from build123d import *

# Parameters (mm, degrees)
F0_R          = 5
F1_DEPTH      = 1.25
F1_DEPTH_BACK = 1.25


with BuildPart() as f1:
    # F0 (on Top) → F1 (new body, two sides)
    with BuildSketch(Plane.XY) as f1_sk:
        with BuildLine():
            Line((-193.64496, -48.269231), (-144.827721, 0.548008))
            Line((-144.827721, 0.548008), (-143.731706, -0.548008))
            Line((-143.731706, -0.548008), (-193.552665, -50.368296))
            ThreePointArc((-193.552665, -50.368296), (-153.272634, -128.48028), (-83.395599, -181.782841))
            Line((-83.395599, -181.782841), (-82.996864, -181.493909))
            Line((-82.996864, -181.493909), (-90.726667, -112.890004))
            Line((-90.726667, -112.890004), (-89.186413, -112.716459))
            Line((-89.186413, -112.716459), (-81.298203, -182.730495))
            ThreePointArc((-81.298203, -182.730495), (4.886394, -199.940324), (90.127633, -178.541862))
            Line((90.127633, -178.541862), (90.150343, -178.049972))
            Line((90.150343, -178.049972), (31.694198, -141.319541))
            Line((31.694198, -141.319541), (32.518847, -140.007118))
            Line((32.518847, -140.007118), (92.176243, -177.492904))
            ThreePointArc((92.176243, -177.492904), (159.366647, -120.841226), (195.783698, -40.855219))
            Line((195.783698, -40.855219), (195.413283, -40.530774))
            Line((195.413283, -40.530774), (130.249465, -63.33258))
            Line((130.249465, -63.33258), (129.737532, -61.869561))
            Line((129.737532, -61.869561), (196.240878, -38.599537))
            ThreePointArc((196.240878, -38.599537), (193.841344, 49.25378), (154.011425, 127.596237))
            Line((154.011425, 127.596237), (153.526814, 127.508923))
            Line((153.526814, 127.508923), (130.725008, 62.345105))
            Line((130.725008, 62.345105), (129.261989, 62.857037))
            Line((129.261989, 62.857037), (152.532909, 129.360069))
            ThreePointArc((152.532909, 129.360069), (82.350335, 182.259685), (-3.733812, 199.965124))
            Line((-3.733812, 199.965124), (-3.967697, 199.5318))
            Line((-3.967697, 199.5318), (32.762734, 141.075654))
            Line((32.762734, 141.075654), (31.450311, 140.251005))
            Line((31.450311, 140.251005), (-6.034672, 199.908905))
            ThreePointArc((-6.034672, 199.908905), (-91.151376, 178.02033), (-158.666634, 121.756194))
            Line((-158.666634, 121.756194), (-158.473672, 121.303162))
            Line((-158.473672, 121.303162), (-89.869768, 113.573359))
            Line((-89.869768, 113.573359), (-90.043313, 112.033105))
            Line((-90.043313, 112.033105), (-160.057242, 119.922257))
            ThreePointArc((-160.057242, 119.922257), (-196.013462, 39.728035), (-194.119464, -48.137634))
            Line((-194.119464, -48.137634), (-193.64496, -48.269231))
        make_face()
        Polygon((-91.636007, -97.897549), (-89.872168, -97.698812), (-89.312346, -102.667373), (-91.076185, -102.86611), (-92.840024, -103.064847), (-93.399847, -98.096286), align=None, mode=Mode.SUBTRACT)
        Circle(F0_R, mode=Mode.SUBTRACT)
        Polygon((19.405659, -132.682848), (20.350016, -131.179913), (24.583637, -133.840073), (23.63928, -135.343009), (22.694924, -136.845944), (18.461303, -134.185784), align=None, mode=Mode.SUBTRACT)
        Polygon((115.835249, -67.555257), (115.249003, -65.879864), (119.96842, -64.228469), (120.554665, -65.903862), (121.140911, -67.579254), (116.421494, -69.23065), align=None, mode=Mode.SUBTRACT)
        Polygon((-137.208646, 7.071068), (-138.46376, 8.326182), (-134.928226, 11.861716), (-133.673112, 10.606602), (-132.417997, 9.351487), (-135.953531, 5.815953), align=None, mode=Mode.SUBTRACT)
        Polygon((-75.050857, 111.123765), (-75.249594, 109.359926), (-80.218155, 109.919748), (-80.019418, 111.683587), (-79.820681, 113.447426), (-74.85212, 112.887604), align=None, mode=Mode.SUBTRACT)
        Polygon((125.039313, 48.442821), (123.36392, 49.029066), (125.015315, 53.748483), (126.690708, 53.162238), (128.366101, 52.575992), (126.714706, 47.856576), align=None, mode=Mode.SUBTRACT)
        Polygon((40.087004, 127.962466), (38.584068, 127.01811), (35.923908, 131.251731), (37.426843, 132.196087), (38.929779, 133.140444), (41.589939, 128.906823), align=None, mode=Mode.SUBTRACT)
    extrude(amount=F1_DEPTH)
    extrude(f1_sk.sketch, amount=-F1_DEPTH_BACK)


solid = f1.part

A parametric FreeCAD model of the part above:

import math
import FreeCAD as App
import Part
import Sketcher

V = App.Vector

doc = App.newDocument("Part")
body = doc.addObject("PartDesign::Body", "Body")

sketch1 = body.newObject("Sketcher::SketchObject", "Sketch")
sketch1.AttachmentSupport = (doc.getObject("XY_Plane"), [""])
sketch1.MapMode = "FlatFace"
sketch1.addGeometry(Part.LineSegment(V(-193.64496, -48.269231, 0), V(-144.827721, 0.548008, 0)), False)
sketch1.addGeometry(Part.LineSegment(V(-144.827721, 0.548008, 0), V(-143.731706, -0.548008, 0)), False)
sketch1.addGeometry(Part.LineSegment(V(-143.731706, -0.548008, 0), V(-193.552665, -50.368296, 0)), False)
sketch1.addGeometry(Part.ArcOfCircle(Part.Circle(V(0.001034, 0, 0), V(0, 0, 1), 199.999999), math.radians(-165.413492), math.radians(-114.644268)), False)
sketch1.addGeometry(Part.LineSegment(V(-83.395599, -181.782841, 0), V(-82.996864, -181.493909, 0)), False)
sketch1.addGeometry(Part.LineSegment(V(-82.996864, -181.493909, 0), V(-90.726667, -112.890004, 0)), False)
sketch1.addGeometry(Part.LineSegment(V(-90.726667, -112.890004, 0), V(-89.186413, -112.716459, 0)), False)
sketch1.addGeometry(Part.LineSegment(V(-89.186413, -112.716459, 0), V(-81.298203, -182.730495, 0)), False)
sketch1.addGeometry(Part.ArcOfCircle(Part.Circle(V(0.001036, 0.000003, 0), V(0, 0, 1), 200.000003), math.radians(-113.98492), math.radians(-63.215697)), False)
sketch1.addGeometry(Part.LineSegment(V(90.127633, -178.541862, 0), V(90.150343, -178.049972, 0)), False)
sketch1.addGeometry(Part.LineSegment(V(90.150343, -178.049972, 0), V(31.694198, -141.319541, 0)), False)
sketch1.addGeometry(Part.LineSegment(V(31.694198, -141.319541, 0), V(32.518847, -140.007118, 0)), False)
sketch1.addGeometry(Part.LineSegment(V(32.518847, -140.007118, 0), V(92.176243, -177.492904, 0)), False)
sketch1.addGeometry(Part.ArcOfCircle(Part.Circle(V(0.001039, -0.000003, 0), V(0, 0, 1), 199.999995), math.radians(-62.556349), math.radians(-11.787125)), False)
sketch1.addGeometry(Part.LineSegment(V(195.783698, -40.855219, 0), V(195.413283, -40.530774, 0)), False)
sketch1.addGeometry(Part.LineSegment(V(195.413283, -40.530774, 0), V(130.249465, -63.33258, 0)), False)
sketch1.addGeometry(Part.LineSegment(V(130.249465, -63.33258, 0), V(129.737532, -61.869561, 0)), False)
sketch1.addGeometry(Part.LineSegment(V(129.737532, -61.869561, 0), V(196.240878, -38.599537, 0)), False)
sketch1.addGeometry(Part.ArcOfCircle(Part.Circle(V(0.001039, 0, 0), V(0, 0, 1), 199.999997), math.radians(-11.127778), math.radians(39.641447)), False)
sketch1.addGeometry(Part.LineSegment(V(154.011425, 127.596237, 0), V(153.526814, 127.508923, 0)), False)
sketch1.addGeometry(Part.LineSegment(V(153.526814, 127.508923, 0), V(130.725008, 62.345105, 0)), False)
sketch1.addGeometry(Part.LineSegment(V(130.725008, 62.345105, 0), V(129.261989, 62.857037, 0)), False)
sketch1.addGeometry(Part.LineSegment(V(129.261989, 62.857037, 0), V(152.532909, 129.360069, 0)), False)
sketch1.addGeometry(Part.ArcOfCircle(Part.Circle(V(0.001036, 0, 0), V(0, 0, 1), 199.999999), math.radians(40.300794), math.radians(91.070017)), False)
sketch1.addGeometry(Part.LineSegment(V(-3.733812, 199.965124, 0), V(-3.967697, 199.5318, 0)), False)
sketch1.addGeometry(Part.LineSegment(V(-3.967697, 199.5318, 0), V(32.762734, 141.075654, 0)), False)
sketch1.addGeometry(Part.LineSegment(V(32.762734, 141.075654, 0), V(31.450311, 140.251005, 0)), False)
sketch1.addGeometry(Part.LineSegment(V(31.450311, 140.251005, 0), V(-6.034672, 199.908905, 0)), False)
sketch1.addGeometry(Part.ArcOfCircle(Part.Circle(V(0.001036, -0.000002, 0), V(0, 0, 1), 200.000002), math.radians(91.729366), math.radians(142.498589)), False)
sketch1.addGeometry(Part.LineSegment(V(-158.666634, 121.756194, 0), V(-158.473672, 121.303162, 0)), False)
sketch1.addGeometry(Part.LineSegment(V(-158.473672, 121.303162, 0), V(-89.869768, 113.573359, 0)), False)
sketch1.addGeometry(Part.LineSegment(V(-89.869768, 113.573359, 0), V(-90.043313, 112.033105, 0)), False)
sketch1.addGeometry(Part.LineSegment(V(-90.043313, 112.033105, 0), V(-160.057242, 119.922257, 0)), False)
sketch1.addGeometry(Part.ArcOfCircle(Part.Circle(V(0.001036, -0.000001, 0), V(0, 0, 1), 200.000001), math.radians(143.157937), math.radians(193.92716)), False)
sketch1.addGeometry(Part.LineSegment(V(-194.119464, -48.137634, 0), V(-193.64496, -48.269231, 0)), False)
sketch1.addGeometry(Part.LineSegment(V(-93.399847, -98.096286, 0), V(-91.636007, -97.897549, 0)), False)
sketch1.addGeometry(Part.LineSegment(V(-91.636007, -97.897549, 0), V(-89.872168, -97.698812, 0)), False)
sketch1.addGeometry(Part.LineSegment(V(-89.872168, -97.698812, 0), V(-89.312346, -102.667373, 0)), False)
sketch1.addGeometry(Part.LineSegment(V(-89.312346, -102.667373, 0), V(-92.840024, -103.064847, 0)), False)
sketch1.addGeometry(Part.LineSegment(V(-92.840024, -103.064847, 0), V(-93.399847, -98.096286, 0)), False)
sketch1.addGeometry(Part.LineSegment(V(18.461303, -134.185784, 0), V(19.405659, -132.682848, 0)), False)
sketch1.addGeometry(Part.LineSegment(V(19.405659, -132.682848, 0), V(20.350016, -131.179913, 0)), False)
sketch1.addGeometry(Part.LineSegment(V(20.350016, -131.179913, 0), V(24.583637, -133.840073, 0)), False)
sketch1.addGeometry(Part.LineSegment(V(24.583637, -133.840073, 0), V(23.63928, -135.343009, 0)), False)
sketch1.addGeometry(Part.LineSegment(V(23.63928, -135.343009, 0), V(22.694924, -136.845944, 0)), False)
sketch1.addGeometry(Part.LineSegment(V(22.694924, -136.845944, 0), V(18.461303, -134.185784, 0)), False)
sketch1.addGeometry(Part.LineSegment(V(116.421494, -69.23065, 0), V(115.835249, -67.555257, 0)), False)
sketch1.addGeometry(Part.LineSegment(V(115.835249, -67.555257, 0), V(115.249003, -65.879864, 0)), False)
sketch1.addGeometry(Part.LineSegment(V(115.249003, -65.879864, 0), V(119.96842, -64.228469, 0)), False)
sketch1.addGeometry(Part.LineSegment(V(119.96842, -64.228469, 0), V(120.554665, -65.903862, 0)), False)
sketch1.addGeometry(Part.LineSegment(V(120.554665, -65.903862, 0), V(121.140911, -67.579254, 0)), False)
sketch1.addGeometry(Part.LineSegment(V(121.140911, -67.579254, 0), V(116.421494, -69.23065, 0)), False)
sketch1.addGeometry(Part.LineSegment(V(-135.953531, 5.815953, 0), V(-138.46376, 8.326182, 0)), False)
sketch1.addGeometry(Part.LineSegment(V(-138.46376, 8.326182, 0), V(-134.928226, 11.861716, 0)), False)
sketch1.addGeometry(Part.LineSegment(V(-134.928226, 11.861716, 0), V(-132.417997, 9.351487, 0)), False)
sketch1.addGeometry(Part.LineSegment(V(-132.417997, 9.351487, 0), V(-135.953531, 5.815953, 0)), False)
sketch1.addGeometry(Part.LineSegment(V(-74.85212, 112.887604, 0), V(-75.249594, 109.359926, 0)), False)
sketch1.addGeometry(Part.LineSegment(V(-75.249594, 109.359926, 0), V(-80.218155, 109.919748, 0)), False)
sketch1.addGeometry(Part.LineSegment(V(-80.218155, 109.919748, 0), V(-79.820681, 113.447426, 0)), False)
sketch1.addGeometry(Part.LineSegment(V(-79.820681, 113.447426, 0), V(-74.85212, 112.887604, 0)), False)
sketch1.addGeometry(Part.Circle(V(0, 0, 0), V(0, 0, 1), 5), False)
sketch1.addGeometry(Part.LineSegment(V(126.714706, 47.856576, 0), V(123.36392, 49.029066, 0)), False)
sketch1.addGeometry(Part.LineSegment(V(123.36392, 49.029066, 0), V(125.015315, 53.748483, 0)), False)
sketch1.addGeometry(Part.LineSegment(V(125.015315, 53.748483, 0), V(126.690708, 53.162238, 0)), False)
sketch1.addGeometry(Part.LineSegment(V(126.690708, 53.162238, 0), V(128.366101, 52.575992, 0)), False)
sketch1.addGeometry(Part.LineSegment(V(128.366101, 52.575992, 0), V(126.714706, 47.856576, 0)), False)
sketch1.addGeometry(Part.LineSegment(V(41.589939, 128.906823, 0), V(40.087004, 127.962466, 0)), False)
sketch1.addGeometry(Part.LineSegment(V(40.087004, 127.962466, 0), V(38.584068, 127.01811, 0)), False)
sketch1.addGeometry(Part.LineSegment(V(38.584068, 127.01811, 0), V(35.923908, 131.251731, 0)), False)
sketch1.addGeometry(Part.LineSegment(V(35.923908, 131.251731, 0), V(37.426843, 132.196087, 0)), False)
sketch1.addGeometry(Part.LineSegment(V(37.426843, 132.196087, 0), V(38.929779, 133.140444, 0)), False)
sketch1.addGeometry(Part.LineSegment(V(38.929779, 133.140444, 0), V(41.589939, 128.906823, 0)), False)
sketch1.addConstraint(Sketcher.Constraint("Coincident", 0, 2, 1, 1))
sketch1.addConstraint(Sketcher.Constraint("Coincident", 1, 2, 2, 1))
sketch1.addConstraint(Sketcher.Constraint("Coincident", 2, 2, 3, 1))
sketch1.addConstraint(Sketcher.Constraint("Coincident", 3, 2, 4, 1))
sketch1.addConstraint(Sketcher.Constraint("Coincident", 4, 2, 5, 1))
sketch1.addConstraint(Sketcher.Constraint("Coincident", 5, 2, 6, 1))
sketch1.addConstraint(Sketcher.Constraint("Coincident", 6, 2, 7, 1))
sketch1.addConstraint(Sketcher.Constraint("Coincident", 7, 2, 8, 1))
sketch1.addConstraint(Sketcher.Constraint("Coincident", 8, 2, 9, 1))
sketch1.addConstraint(Sketcher.Constraint("Coincident", 9, 2, 10, 1))
sketch1.addConstraint(Sketcher.Constraint("Coincident", 10, 2, 11, 1))
sketch1.addConstraint(Sketcher.Constraint("Coincident", 11, 2, 12, 1))
sketch1.addConstraint(Sketcher.Constraint("Coincident", 12, 2, 13, 1))
sketch1.addConstraint(Sketcher.Constraint("Coincident", 13, 2, 14, 1))
sketch1.addConstraint(Sketcher.Constraint("Coincident", 14, 2, 15, 1))
sketch1.addConstraint(Sketcher.Constraint("Coincident", 15, 2, 16, 1))
sketch1.addConstraint(Sketcher.Constraint("Coincident", 16, 2, 17, 1))
sketch1.addConstraint(Sketcher.Constraint("Coincident", 17, 2, 18, 1))
sketch1.addConstraint(Sketcher.Constraint("Coincident", 18, 2, 19, 1))
sketch1.addConstraint(Sketcher.Constraint("Coincident", 19, 2, 20, 1))
sketch1.addConstraint(Sketcher.Constraint("Coincident", 20, 2, 21, 1))
sketch1.addConstraint(Sketcher.Constraint("Coincident", 21, 2, 22, 1))
sketch1.addConstraint(Sketcher.Constraint("Coincident", 22, 2, 23, 1))
sketch1.addConstraint(Sketcher.Constraint("Coincident", 23, 2, 24, 1))
sketch1.addConstraint(Sketcher.Constraint("Coincident", 24, 2, 25, 1))
sketch1.addConstraint(Sketcher.Constraint("Coincident", 25, 2, 26, 1))
sketch1.addConstraint(Sketcher.Constraint("Coincident", 26, 2, 27, 1))
sketch1.addConstraint(Sketcher.Constraint("Coincident", 27, 2, 28, 1))
sketch1.addConstraint(Sketcher.Constraint("Coincident", 28, 2, 29, 1))
sketch1.addConstraint(Sketcher.Constraint("Coincident", 29, 2, 30, 1))
sketch1.addConstraint(Sketcher.Constraint("Coincident", 30, 2, 31, 1))
sketch1.addConstraint(Sketcher.Constraint("Coincident", 31, 2, 32, 1))
sketch1.addConstraint(Sketcher.Constraint("Coincident", 32, 2, 33, 1))
sketch1.addConstraint(Sketcher.Constraint("Coincident", 33, 2, 34, 1))
sketch1.addConstraint(Sketcher.Constraint("Coincident", 34, 2, 0, 1))
sketch1.addConstraint(Sketcher.Constraint("Coincident", 35, 2, 36, 1))
sketch1.addConstraint(Sketcher.Constraint("Coincident", 36, 2, 37, 1))
sketch1.addConstraint(Sketcher.Constraint("Coincident", 37, 2, 38, 1))
sketch1.addConstraint(Sketcher.Constraint("Coincident", 38, 2, 39, 1))
sketch1.addConstraint(Sketcher.Constraint("Coincident", 39, 2, 35, 1))
sketch1.addConstraint(Sketcher.Constraint("Coincident", 40, 2, 41, 1))
sketch1.addConstraint(Sketcher.Constraint("Coincident", 41, 2, 42, 1))
sketch1.addConstraint(Sketcher.Constraint("Coincident", 42, 2, 43, 1))
sketch1.addConstraint(Sketcher.Constraint("Coincident", 43, 2, 44, 1))
sketch1.addConstraint(Sketcher.Constraint("Coincident", 44, 2, 45, 1))
sketch1.addConstraint(Sketcher.Constraint("Coincident", 45, 2, 40, 1))
sketch1.addConstraint(Sketcher.Constraint("Coincident", 46, 2, 47, 1))
sketch1.addConstraint(Sketcher.Constraint("Coincident", 47, 2, 48, 1))
sketch1.addConstraint(Sketcher.Constraint("Coincident", 48, 2, 49, 1))
sketch1.addConstraint(Sketcher.Constraint("Coincident", 49, 2, 50, 1))
sketch1.addConstraint(Sketcher.Constraint("Coincident", 50, 2, 51, 1))
sketch1.addConstraint(Sketcher.Constraint("Coincident", 51, 2, 46, 1))
sketch1.addConstraint(Sketcher.Constraint("Coincident", 52, 2, 53, 1))
sketch1.addConstraint(Sketcher.Constraint("Coincident", 53, 2, 54, 1))
sketch1.addConstraint(Sketcher.Constraint("Coincident", 54, 2, 55, 1))
sketch1.addConstraint(Sketcher.Constraint("Coincident", 55, 2, 52, 1))
sketch1.addConstraint(Sketcher.Constraint("Coincident", 56, 2, 57, 1))
sketch1.addConstraint(Sketcher.Constraint("Coincident", 57, 2, 58, 1))
sketch1.addConstraint(Sketcher.Constraint("Coincident", 58, 2, 59, 1))
sketch1.addConstraint(Sketcher.Constraint("Coincident", 59, 2, 56, 1))
sketch1.addConstraint(Sketcher.Constraint("Coincident", 61, 2, 62, 1))
sketch1.addConstraint(Sketcher.Constraint("Coincident", 62, 2, 63, 1))
sketch1.addConstraint(Sketcher.Constraint("Coincident", 63, 2, 64, 1))
sketch1.addConstraint(Sketcher.Constraint("Coincident", 64, 2, 65, 1))
sketch1.addConstraint(Sketcher.Constraint("Coincident", 65, 2, 61, 1))
sketch1.addConstraint(Sketcher.Constraint("Coincident", 66, 2, 67, 1))
sketch1.addConstraint(Sketcher.Constraint("Coincident", 67, 2, 68, 1))
sketch1.addConstraint(Sketcher.Constraint("Coincident", 68, 2, 69, 1))
sketch1.addConstraint(Sketcher.Constraint("Coincident", 69, 2, 70, 1))
sketch1.addConstraint(Sketcher.Constraint("Coincident", 70, 2, 71, 1))
sketch1.addConstraint(Sketcher.Constraint("Coincident", 71, 2, 66, 1))
sketch1.addConstraint(Sketcher.Constraint("Coincident", 60, 3, -1, 1))
sketch1.addConstraint(Sketcher.Constraint("Coincident", 8, 3, 3, 3))
sketch1.addConstraint(Sketcher.Constraint("Coincident", 13, 3, 3, 3))
sketch1.addConstraint(Sketcher.Constraint("Coincident", 18, 3, 3, 3))
sketch1.addConstraint(Sketcher.Constraint("Coincident", 23, 3, 3, 3))
sketch1.addConstraint(Sketcher.Constraint("Coincident", 28, 3, 3, 3))
sketch1.addConstraint(Sketcher.Constraint("Coincident", 33, 3, 3, 3))
sketch1.addConstraint(Sketcher.Constraint("PointOnObject", 3, 3, -1))
sketch1.addConstraint(Sketcher.Constraint("Diameter", 60, 10.0))
sketch1.addConstraint(Sketcher.Constraint("Radius", 3, 199.999999))
sketch1.addConstraint(Sketcher.Constraint("Radius", 23, 199.999999))
sketch1.addConstraint(Sketcher.Constraint("Radius", 33, 200.000001))
sketch1.addConstraint(Sketcher.Constraint("Distance", 37, 5.0))
sketch1.addConstraint(Sketcher.Constraint("Distance", 39, 5.0))
sketch1.addConstraint(Sketcher.Constraint("Distance", 42, 5.0))
sketch1.addConstraint(Sketcher.Constraint("Distance", 45, 5.0))
sketch1.addConstraint(Sketcher.Constraint("Distance", 48, 5.0))
sketch1.addConstraint(Sketcher.Constraint("Distance", 51, 5.000001))
sketch1.addConstraint(Sketcher.Constraint("Distance", 53, 5.0))
sketch1.addConstraint(Sketcher.Constraint("Distance", 55, 5.0))
sketch1.addConstraint(Sketcher.Constraint("Distance", 57, 5.0))
sketch1.addConstraint(Sketcher.Constraint("Distance", 59, 5.0))
sketch1.addConstraint(Sketcher.Constraint("Distance", 62, 5.0))
sketch1.addConstraint(Sketcher.Constraint("Distance", 65, 4.999999))
sketch1.addConstraint(Sketcher.Constraint("Distance", 68, 5.0))
sketch1.addConstraint(Sketcher.Constraint("Distance", 71, 5.0))
sketch1.addConstraint(Sketcher.Constraint("Distance", 1, 1.55))
sketch1.addConstraint(Sketcher.Constraint("Distance", 6, 1.55))
sketch1.addConstraint(Sketcher.Constraint("Distance", 11, 1.55))
sketch1.addConstraint(Sketcher.Constraint("Distance", 16, 1.55))
sketch1.addConstraint(Sketcher.Constraint("Distance", 21, 1.55))
sketch1.addConstraint(Sketcher.Constraint("Distance", 26, 1.55))
sketch1.addConstraint(Sketcher.Constraint("Distance", 31, 1.55))
sketch1.addConstraint(Sketcher.Constraint("Distance", 38, 3.55))
sketch1.addConstraint(Sketcher.Constraint("Distance", 52, 3.55))
sketch1.addConstraint(Sketcher.Constraint("Distance", 54, 3.55))
sketch1.addConstraint(Sketcher.Constraint("Distance", 56, 3.55))
sketch1.addConstraint(Sketcher.Constraint("Distance", 58, 3.55))
sketch1.addConstraint(Sketcher.Constraint("Distance", 61, 3.55))
sketch1.addConstraint(Sketcher.Constraint("Distance", 0, 69.038001))
sketch1.addConstraint(Sketcher.Constraint("Distance", 2, 70.457001))
sketch1.addConstraint(Sketcher.Constraint("Distance", 5, 69.038001))
sketch1.addConstraint(Sketcher.Constraint("Distance", 7, 70.457002))
sketch1.addConstraint(Sketcher.Constraint("Distance", 10, 69.038))
sketch1.addConstraint(Sketcher.Constraint("Distance", 12, 70.457001))
sketch1.addConstraint(Sketcher.Constraint("Distance", 15, 69.038001))
sketch1.addConstraint(Sketcher.Constraint("Distance", 17, 70.457001))
sketch1.addConstraint(Sketcher.Constraint("Distance", 20, 69.038001))
sketch1.addConstraint(Sketcher.Constraint("Distance", 22, 70.457001))
sketch1.addConstraint(Sketcher.Constraint("Distance", 25, 69.038001))
sketch1.addConstraint(Sketcher.Constraint("Distance", 27, 70.457001))
sketch1.addConstraint(Sketcher.Constraint("Distance", 30, 69.038))
sketch1.addConstraint(Sketcher.Constraint("Distance", 32, 70.457001))
sketch1.addConstraint(Sketcher.Constraint("Distance", 35, 1.775001))
sketch1.addConstraint(Sketcher.Constraint("Distance", 36, 1.775))
sketch1.addConstraint(Sketcher.Constraint("Distance", 40, 1.775))
sketch1.addConstraint(Sketcher.Constraint("Distance", 41, 1.775))
sketch1.addConstraint(Sketcher.Constraint("Distance", 43, 1.775))
sketch1.addConstraint(Sketcher.Constraint("Distance", 44, 1.774999))
sketch1.addConstraint(Sketcher.Constraint("Distance", 46, 1.775))
sketch1.addConstraint(Sketcher.Constraint("Distance", 47, 1.775))
sketch1.addConstraint(Sketcher.Constraint("Distance", 49, 1.775))
sketch1.addConstraint(Sketcher.Constraint("Distance", 50, 1.774999))
sketch1.addConstraint(Sketcher.Constraint("Distance", 63, 1.775))
sketch1.addConstraint(Sketcher.Constraint("Distance", 64, 1.775))
sketch1.addConstraint(Sketcher.Constraint("Distance", 66, 1.775))
sketch1.addConstraint(Sketcher.Constraint("Distance", 67, 1.775))
sketch1.addConstraint(Sketcher.Constraint("Distance", 69, 1.774999))
sketch1.addConstraint(Sketcher.Constraint("Distance", 70, 1.775))
sketch1.addConstraint(Sketcher.Constraint("Radius", 8, 200.000003))
sketch1.addConstraint(Sketcher.Constraint("Radius", 13, 199.999995))
sketch1.addConstraint(Sketcher.Constraint("Radius", 18, 199.999997))
sketch1.addConstraint(Sketcher.Constraint("Radius", 28, 200.000002))
sketch1.addConstraint(Sketcher.Constraint("DistanceX", 3, 2, -1, 1, 83.395599))
sketch1.addConstraint(Sketcher.Constraint("DistanceX", -1, 1, 10, 2, 31.694198))
sketch1.addConstraint(Sketcher.Constraint("DistanceY", -1, 1, 24, 2, 199.5318))
sketch1.addConstraint(Sketcher.Constraint("DistanceX", -1, 1, 64, 2, 128.366101))
sketch1.addConstraint(Sketcher.Constraint("DistanceX", -1, 1, 13, 3, 0.001039))
sketch1.addConstraint(Sketcher.Constraint("DistanceX", 0, 2, -1, 1, 144.827721))
sketch1.addConstraint(Sketcher.Constraint("DistanceY", -1, 1, 0, 2, 0.548008))
sketch1.addConstraint(Sketcher.Constraint("DistanceY", 1, 2, -1, 1, 0.548008))
sketch1.addConstraint(Sketcher.Constraint("DistanceY", 4, 2, -1, 1, 181.493909))
sketch1.addConstraint(Sketcher.Constraint("DistanceY", 6, 2, -1, 1, 112.716459))
sketch1.addConstraint(Sketcher.Constraint("DistanceY", 8, 2, -1, 1, 178.541862))
sketch1.addConstraint(Sketcher.Constraint("DistanceY", 9, 2, -1, 1, 178.049972))
sketch1.addConstraint(Sketcher.Constraint("DistanceY", 10, 2, -1, 1, 141.319541))
sketch1.addConstraint(Sketcher.Constraint("DistanceY", 11, 2, -1, 1, 140.007118))
sketch1.addConstraint(Sketcher.Constraint("DistanceY", 13, 2, -1, 1, 40.855219))
sketch1.addConstraint(Sketcher.Constraint("DistanceY", 15, 2, -1, 1, 63.33258))
sketch1.addConstraint(Sketcher.Constraint("DistanceX", -1, 1, 16, 2, 129.737532))
sketch1.addConstraint(Sketcher.Constraint("DistanceY", 16, 2, -1, 1, 61.869561))
sketch1.addConstraint(Sketcher.Constraint("DistanceX", -1, 1, 20, 2, 130.725008))
sketch1.addConstraint(Sketcher.Constraint("DistanceX", -1, 1, 21, 2, 129.261989))
sketch1.addConstraint(Sketcher.Constraint("DistanceX", -1, 1, 22, 2, 152.532909))
sketch1.addConstraint(Sketcher.Constraint("DistanceX", -1, 1, 26, 2, 31.450311))
sketch1.addConstraint(Sketcher.Constraint("DistanceX", 27, 2, -1, 1, 6.034672))
sketch1.addConstraint(Sketcher.Constraint("DistanceX", 29, 2, -1, 1, 158.473672))
sketch1.addConstraint(Sketcher.Constraint("DistanceY", -1, 1, 29, 2, 121.303162))
sketch1.addConstraint(Sketcher.Constraint("DistanceY", -1, 1, 30, 2, 113.573359))
sketch1.addConstraint(Sketcher.Constraint("DistanceX", 32, 2, -1, 1, 160.057242))
sketch1.addConstraint(Sketcher.Constraint("DistanceX", 34, 2, -1, 1, 193.64496))
sketch1.addConstraint(Sketcher.Constraint("DistanceY", 35, 2, -1, 1, 97.897549))
sketch1.addConstraint(Sketcher.Constraint("DistanceX", 36, 2, -1, 1, 89.872168))
sketch1.addConstraint(Sketcher.Constraint("DistanceX", -1, 1, 40, 2, 19.405659))
sketch1.addConstraint(Sketcher.Constraint("DistanceY", 40, 2, -1, 1, 132.682848))
sketch1.addConstraint(Sketcher.Constraint("DistanceX", -1, 1, 43, 2, 23.63928))
sketch1.addConstraint(Sketcher.Constraint("DistanceY", 43, 2, -1, 1, 135.343009))
sketch1.addConstraint(Sketcher.Constraint("DistanceX", -1, 1, 46, 2, 115.835249))
sketch1.addConstraint(Sketcher.Constraint("DistanceX", -1, 1, 48, 2, 119.96842))
sketch1.addConstraint(Sketcher.Constraint("DistanceY", 48, 2, -1, 1, 64.228469))
sketch1.addConstraint(Sketcher.Constraint("DistanceX", -1, 1, 50, 2, 121.140911))
sketch1.addConstraint(Sketcher.Constraint("DistanceY", 51, 2, -1, 1, 69.23065))
sketch1.addConstraint(Sketcher.Constraint("DistanceX", 52, 2, -1, 1, 138.46376))
sketch1.addConstraint(Sketcher.Constraint("DistanceY", -1, 1, 52, 2, 8.326182))
sketch1.addConstraint(Sketcher.Constraint("DistanceX", 55, 2, -1, 1, 135.953531))
sketch1.addConstraint(Sketcher.Constraint("DistanceY", -1, 1, 57, 2, 109.919748))
sketch1.addConstraint(Sketcher.Constraint("DistanceX", 58, 2, -1, 1, 79.820681))
sketch1.addConstraint(Sketcher.Constraint("DistanceX", 59, 2, -1, 1, 74.85212))
sketch1.addConstraint(Sketcher.Constraint("DistanceX", -1, 1, 61, 2, 123.36392))
sketch1.addConstraint(Sketcher.Constraint("DistanceX", -1, 1, 63, 2, 126.690708))
sketch1.addConstraint(Sketcher.Constraint("DistanceY", -1, 1, 63, 2, 53.162238))
sketch1.addConstraint(Sketcher.Constraint("DistanceX", -1, 1, 67, 2, 38.584068))
sketch1.addConstraint(Sketcher.Constraint("DistanceY", -1, 1, 67, 2, 127.01811))
sketch1.addConstraint(Sketcher.Constraint("DistanceY", -1, 1, 68, 2, 131.251731))
sketch1.addConstraint(Sketcher.Constraint("DistanceX", -1, 1, 70, 2, 38.929779))
sketch1.addConstraint(Sketcher.Constraint("Distance", 4, 0.492414))
sketch1.addConstraint(Sketcher.Constraint("Distance", 14, 0.492414))
sketch1.addConstraint(Sketcher.Constraint("Distance", 19, 0.492414))
sketch1.addConstraint(Sketcher.Constraint("Distance", 24, 0.492414))
sketch1.addConstraint(Sketcher.Constraint("Distance", 29, 0.492415))
sketch1.addConstraint(Sketcher.Constraint("Distance", 34, 0.492414))
sketch1.addConstraint(Sketcher.Constraint("DistanceX", 5, 2, -1, 1, 90.726667))
sketch1.addConstraint(Sketcher.Constraint("DistanceX", -1, 1, 18, 2, 154.011425))
sketch1.addConstraint(Sketcher.Constraint("DistanceX", 23, 2, -1, 1, 3.733812))
sketch1.addConstraint(Sketcher.Constraint("DistanceX", 35, 2, -1, 1, 91.636007))
sketch1.addConstraint(Sketcher.Constraint("DistanceX", 37, 2, -1, 1, 89.312346))
sketch1.addConstraint(Sketcher.Constraint("DistanceX", 38, 2, -1, 1, 92.840024))
sketch1.addConstraint(Sketcher.Constraint("DistanceX", -1, 1, 41, 2, 20.350016))
sketch1.addConstraint(Sketcher.Constraint("DistanceX", -1, 1, 44, 2, 22.694924))
sketch1.addConstraint(Sketcher.Constraint("DistanceX", -1, 1, 49, 2, 120.554665))
sketch1.addConstraint(Sketcher.Constraint("DistanceX", 53, 2, -1, 1, 134.928226))
sketch1.addConstraint(Sketcher.Constraint("DistanceX", 56, 2, -1, 1, 75.249594))
sketch1.addConstraint(Sketcher.Constraint("DistanceY", -1, 1, 61, 2, 49.029066))
sketch1.addConstraint(Sketcher.Constraint("DistanceX", -1, 1, 66, 2, 40.087004))
sketch1.addConstraint(Sketcher.Constraint("DistanceX", -1, 1, 69, 2, 37.426843))
pad1 = body.newObject("PartDesign::Pad", "Pad")
pad1.Profile = sketch1
pad1.Type = "TwoLengths"
pad1.Length = 1.25
pad1.Length2 = 1.25

doc.recompute()
